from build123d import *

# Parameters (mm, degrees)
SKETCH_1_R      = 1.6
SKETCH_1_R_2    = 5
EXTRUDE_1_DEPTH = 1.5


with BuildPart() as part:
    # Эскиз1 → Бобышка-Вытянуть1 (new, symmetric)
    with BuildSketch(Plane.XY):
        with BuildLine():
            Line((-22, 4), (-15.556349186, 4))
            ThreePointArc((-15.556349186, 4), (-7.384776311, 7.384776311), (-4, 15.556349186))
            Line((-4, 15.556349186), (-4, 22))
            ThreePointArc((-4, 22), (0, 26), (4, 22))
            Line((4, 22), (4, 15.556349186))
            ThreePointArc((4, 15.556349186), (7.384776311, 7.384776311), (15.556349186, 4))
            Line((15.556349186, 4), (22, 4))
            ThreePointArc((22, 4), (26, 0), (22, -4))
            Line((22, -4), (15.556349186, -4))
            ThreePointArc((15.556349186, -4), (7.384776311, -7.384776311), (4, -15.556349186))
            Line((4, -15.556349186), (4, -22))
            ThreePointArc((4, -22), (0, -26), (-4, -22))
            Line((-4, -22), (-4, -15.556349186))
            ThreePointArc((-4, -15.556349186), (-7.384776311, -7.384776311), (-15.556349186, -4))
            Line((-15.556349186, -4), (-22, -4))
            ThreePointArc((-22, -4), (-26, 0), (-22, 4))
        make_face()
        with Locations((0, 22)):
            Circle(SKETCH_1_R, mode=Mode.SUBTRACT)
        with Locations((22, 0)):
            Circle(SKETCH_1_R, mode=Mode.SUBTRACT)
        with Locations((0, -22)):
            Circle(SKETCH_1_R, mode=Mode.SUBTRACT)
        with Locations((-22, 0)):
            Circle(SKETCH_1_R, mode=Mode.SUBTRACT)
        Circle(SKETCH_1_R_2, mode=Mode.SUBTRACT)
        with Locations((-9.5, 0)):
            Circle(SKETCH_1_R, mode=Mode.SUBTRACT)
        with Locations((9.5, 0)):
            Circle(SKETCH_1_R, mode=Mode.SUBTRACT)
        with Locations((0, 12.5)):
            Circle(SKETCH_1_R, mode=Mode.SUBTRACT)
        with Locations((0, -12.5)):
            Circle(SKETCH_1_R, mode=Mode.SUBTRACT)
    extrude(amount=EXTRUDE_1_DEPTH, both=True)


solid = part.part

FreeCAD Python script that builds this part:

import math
import FreeCAD as App
import Part
import Sketcher
from FreeCAD import Vector

doc = App.newDocument("Part")
body = doc.addObject("PartDesign::Body", "Body")

sketch1 = body.newObject("Sketcher::SketchObject", "Sketch")
sketch1.AttachmentSupport = (doc.getObject("XY_Plane"), [""])
sketch1.MapMode = "FlatFace"
sketch1.addGeometry(Part.LineSegment(Vector(-15.6, 4, 0), Vector(-22, 4, 0)), False)
sketch1.addGeometry(Part.ArcOfCircle(Part.Circle(Vector(-22, 0, 0), Vector(0, 0, 1), 4), math.radians(90), math.radians(270)), False)
sketch1.addGeometry(Part.LineSegment(Vector(-22, -4, 0), Vector(-15.6, -4, 0)), False)
sketch1.addGeometry(Part.ArcOfCircle(Part.Circle(Vector(-15.6, -15.6, 0), Vector(0, 0, 1), 11.6), math.radians(0), math.radians(90)), False)
sketch1.addGeometry(Part.LineSegment(Vector(-4, -15.6, 0), Vector(-4, -22, 0)), False)
sketch1.addGeometry(Part.ArcOfCircle(Part.Circle(Vector(0, -22, 0), Vector(0, 0, 1), 4), math.radians(180), math.radians(360)), False)
sketch1.addGeometry(Part.LineSegment(Vector(4, -22, 0), Vector(4, -15.6, 0)), False)
sketch1.addGeometry(Part.ArcOfCircle(Part.Circle(Vector(15.6, -15.6, 0), Vector(0, 0, 1), 11.6), math.radians(90), math.radians(180)), False)
sketch1.addGeometry(Part.LineSegment(Vector(15.6, -4, 0), Vector(22, -4, 0)), False)
sketch1.addGeometry(Part.ArcOfCircle(Part.Circle(Vector(22, 0, 0), Vector(0, 0, 1), 4), math.radians(-90), math.radians(90)), False)
sketch1.addGeometry(Part.LineSegment(Vector(22, 4, 0), Vector(15.6, 4, 0)), False)
sketch1.addGeometry(Part.ArcOfCircle(Part.Circle(Vector(15.6, 15.6, 0), Vector(0, 0, 1), 11.6), math.radians(-180), math.radians(-90)), False)
sketch1.addGeometry(Part.LineSegment(Vector(4, 15.6, 0), Vector(4, 22, 0)), False)
sketch1.addGeometry(Part.ArcOfCircle(Part.Circle(Vector(0, 22, 0), Vector(0, 0, 1), 4), math.radians(0), math.radians(180)), False)
sketch1.addGeometry(Part.LineSegment(Vector(-4, 22, 0), Vector(-4, 15.6, 0)), False)
sketch1.addGeometry(Part.ArcOfCircle(Part.Circle(Vector(-15.6, 15.6, 0), Vector(0, 0, 1), 11.6), math.radians(-90), math.radians(0)), False)
sketch1.addGeometry(Part.Circle(Vector(0, -22, 0), Vector(0, 0, 1), 1.6), False)
sketch1.addGeometry(Part.Circle(Vector(0, -12.5, 0), Vector(0, 0, 1), 1.6), False)
sketch1.addGeometry(Part.Circle(Vector(22, 0, 0), Vector(0, 0, 1), 1.6), False)
sketch1.addGeometry(Part.Circle(Vector(9.5, 0, 0), Vector(0, 0, 1), 1.6), False)
sketch1.addGeometry(Part.Circle(Vector(0, 0, 0), Vector(0, 0, 1), 5), False)
sketch1.addGeometry(Part.Circle(Vector(-9.5, 0, 0), Vector(0, 0, 1), 1.6), False)
sketch1.addGeometry(Part.Circle(Vector(-22, 0, 0), Vector(0, 0, 1), 1.6), False)
sketch1.addGeometry(Part.Circle(Vector(0, 12.5, 0), Vector(0, 0, 1), 1.6), False)
sketch1.addGeometry(Part.Circle(Vector(0, 22, 0), Vector(0, 0, 1), 1.6), False)
sketch1.addConstraint(Sketcher.Constraint("Tangent", 0, 2, 1, 1))
sketch1.addConstraint(Sketcher.Constraint("Tangent", 1, 2, 2, 1))
sketch1.addConstraint(Sketcher.Constraint("Tangent", 2, 2, 3, 2))
sketch1.addConstraint(Sketcher.Constraint("Tangent", 3, 1, 4, 1))
sketch1.addConstraint(Sketcher.Constraint("Tangent", 4, 2, 5, 1))
sketch1.addConstraint(Sketcher.Constraint("Tangent", 5, 2, 6, 1))
sketch1.addConstraint(Sketcher.Constraint("Tangent", 6, 2, 7, 2))
sketch1.addConstraint(Sketcher.Constraint("Tangent", 7, 1, 8, 1))
sketch1.addConstraint(Sketcher.Constraint("Tangent", 8, 2, 9, 1))
sketch1.addConstraint(Sketcher.Constraint("Tangent", 9, 2, 10, 1))
sketch1.addConstraint(Sketcher.Constraint("Tangent", 10, 2, 11, 2))
sketch1.addConstraint(Sketcher.Constraint("Tangent", 11, 1, 12, 1))
sketch1.addConstraint(Sketcher.Constraint("Tangent", 12, 2, 13, 1))
sketch1.addConstraint(Sketcher.Constraint("Tangent", 13, 2, 14, 1))
sketch1.addConstraint(Sketcher.Constraint("Tangent", 14, 2, 15, 2))
sketch1.addConstraint(Sketcher.Constraint("Tangent", 15, 1, 0, 1))
sketch1.addConstraint(Sketcher.Constraint("Horizontal", 0))
sketch1.addConstraint(Sketcher.Constraint("Horizontal", 2))
sketch1.addConstraint(Sketcher.Constraint("Vertical", 4))
sketch1.addConstraint(Sketcher.Constraint("Vertical", 6))
sketch1.addConstraint(Sketcher.Constraint("Horizontal", 8))
sketch1.addConstraint(Sketcher.Constraint("Horizontal", 10))
sketch1.addConstraint(Sketcher.Constraint("Vertical", 12))
sketch1.addConstraint(Sketcher.Constraint("Vertical", 14))
sketch1.addConstraint(Sketcher.Constraint("Coincident", 20, 3, -1, 1))
sketch1.addConstraint(Sketcher.Constraint("Coincident", 16, 3, 5, 3))
sketch1.addConstraint(Sketcher.Constraint("Coincident", 18, 3, 9, 3))
sketch1.addConstraint(Sketcher.Constraint("Coincident", 22, 3, 1, 3))
sketch1.addConstraint(Sketcher.Constraint("Coincident", 24, 3, 13, 3))
sketch1.addConstraint(Sketcher.Constraint("Equal", 1, 5))
sketch1.addConstraint(Sketcher.Constraint("Equal", 3, 7))
sketch1.addConstraint(Sketcher.Constraint("Equal", 5, 9))
sketch1.addConstraint(Sketcher.Constraint("Equal", 7, 11))
sketch1.addConstraint(Sketcher.Constraint("Equal", 9, 13))
sketch1.addConstraint(Sketcher.Constraint("Equal", 11, 15))
sketch1.addConstraint(Sketcher.Constraint("Equal", 16, 17))
sketch1.addConstraint(Sketcher.Constraint("Equal", 17, 18))
sketch1.addConstraint(Sketcher.Constraint("Equal", 18, 19))
sketch1.addConstraint(Sketcher.Constraint("Equal", 19, 21))
sketch1.addConstraint(Sketcher.Constraint("Equal", 21, 22))
sketch1.addConstraint(Sketcher.Constraint("Equal", 22, 23))
sketch1.addConstraint(Sketcher.Constraint("Equal", 23, 24))
sketch1.addConstraint(Sketcher.Constraint("Symmetric", 1, 3, 9, 3, -1, 1))
sketch1.addConstraint(Sketcher.Constraint("Symmetric", 5, 3, 13, 3, -1, 1))
sketch1.addConstraint(Sketcher.Constraint("Symmetric", 19, 3, 21, 3, -1, 1))
sketch1.addConstraint(Sketcher.Constraint("Symmetric", 17, 3, 23, 3, -1, 1))
sketch1.addConstraint(Sketcher.Constraint("Symmetric", 3, 3, 7, 3, -2))
sketch1.addConstraint(Sketcher.Constraint("PointOnObject", 17, 3, -2))
sketch1.addConstraint(Sketcher.Constraint("PointOnObject", 19, 3, -1))
sketch1.addConstraint(Sketcher.Constraint("Equal", 10, 4))
sketch1.addConstraint(Sketcher.Constraint("Diameter", 20, 10.0))
sketch1.addConstraint(Sketcher.Constraint("Radius", 1, 4.0))
sketch1.addConstraint(Sketcher.Constraint("Diameter", 16, 3.2))
sketch1.addConstraint(Sketcher.Constraint("DistanceX", 1, 3, -1, 1, 22.0))
sketch1.addConstraint(Sketcher.Constraint("DistanceY", 17, 3, -1, 1, 12.5))
sketch1.addConstraint(Sketcher.Constraint("DistanceX", -1, 1, 19, 3, 9.5))
sketch1.addConstraint(Sketcher.Constraint("Radius", 3, 11.556349))
pad1 = body.newObject("PartDesign::Pad", "Pad")
pad1.Profile = sketch1
pad1.Length = 3
pad1.Midplane = True

doc.recompute()
